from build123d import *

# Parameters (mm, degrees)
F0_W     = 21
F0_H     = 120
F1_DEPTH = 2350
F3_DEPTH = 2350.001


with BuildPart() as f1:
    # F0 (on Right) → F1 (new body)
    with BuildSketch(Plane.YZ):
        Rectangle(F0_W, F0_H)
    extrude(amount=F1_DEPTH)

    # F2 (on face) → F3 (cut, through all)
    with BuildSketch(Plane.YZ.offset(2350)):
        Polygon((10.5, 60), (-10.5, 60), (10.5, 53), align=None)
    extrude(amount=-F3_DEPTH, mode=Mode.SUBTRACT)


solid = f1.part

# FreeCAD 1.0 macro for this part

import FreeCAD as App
import Part
import Sketcher
Q = App.Units.Quantity


def add_polygon(sketch, points):
    """Adds a closed chain of lines whose ends are joined by coincident constraints."""
    first, n = sketch.GeometryCount, len(points)
    for a, b in zip(points, points[1:] + points[:1]):
        sketch.addGeometry(Part.LineSegment(App.Vector(*a, 0), App.Vector(*b, 0)), False)
    for i in range(n):
        sketch.addConstraint(Sketcher.Constraint("Coincident", first + i, 2, first + (i + 1) % n, 1))

doc = App.newDocument("Part")
body = doc.addObject("PartDesign::Body", "Body")

sketch1 = doc.addObject("Sketcher::SketchObject", "Sketch")
body.addObject(sketch1)
sketch1.AttachmentSupport = (doc.YZ_Plane, [""])
sketch1.MapMode = "FlatFace"
add_polygon(sketch1, [(-10, 60), (-10, -60), (10, -60), (10, 60)])
sketch1.addConstraint(Sketcher.Constraint("Vertical", 0))
sketch1.addConstraint(Sketcher.Constraint("Horizontal", 1))
sketch1.addConstraint(Sketcher.Constraint("Vertical", 2))
sketch1.addConstraint(Sketcher.Constraint("Horizontal", 3))
sketch1.addConstraint(Sketcher.Constraint("Symmetric", 0, 2, 2, 2, -1, 1))
sketch1.addConstraint(Sketcher.Constraint("DistanceX", 1, 1, 1, 2, Q("21 mm")))
sketch1.addConstraint(Sketcher.Constraint("DistanceY", 0, 2, 0, 1, Q("120 mm")))
pad1 = doc.addObject("PartDesign::Pad", "Pad")
body.addObject(pad1)
pad1.Profile = sketch1
pad1.Length = 2350

sketch2 = doc.addObject("Sketcher::SketchObject", "Sketch001")
body.addObject(sketch2)
sketch2.AttachmentSupport = (doc.YZ_Plane, [""])
sketch2.MapMode = "FlatFace"
sketch2.AttachmentOffset = App.Placement(App.Vector(0, 0, 2350), App.Rotation())
add_polygon(sketch2, [(10, 60), (-10, 60), (10, 53)])
sketch2.addConstraint(Sketcher.Constraint("Horizontal", 0))
sketch2.addConstraint(Sketcher.Constraint("Vertical", 2))
sketch2.addConstraint(Sketcher.Constraint("DistanceX", 0, 2, 0, 1, Q("21 mm")))
sketch2.addConstraint(Sketcher.Constraint("DistanceY", 2, 1, 2, 2, Q("7 mm")))
sketch2.addConstraint(Sketcher.Constraint("DistanceY", -1, 1, 0, 2, Q("60 mm")))
sketch2.addConstraint(Sketcher.Constraint("DistanceX", 0, 2, -1, 1, Q("10.5 mm")))
pocket1 = doc.addObject("PartDesign::Pocket", "Pocket")
body.addObject(pocket1)
pocket1.Profile = sketch2
pocket1.Type = "ThroughAll"

doc.recompute()
